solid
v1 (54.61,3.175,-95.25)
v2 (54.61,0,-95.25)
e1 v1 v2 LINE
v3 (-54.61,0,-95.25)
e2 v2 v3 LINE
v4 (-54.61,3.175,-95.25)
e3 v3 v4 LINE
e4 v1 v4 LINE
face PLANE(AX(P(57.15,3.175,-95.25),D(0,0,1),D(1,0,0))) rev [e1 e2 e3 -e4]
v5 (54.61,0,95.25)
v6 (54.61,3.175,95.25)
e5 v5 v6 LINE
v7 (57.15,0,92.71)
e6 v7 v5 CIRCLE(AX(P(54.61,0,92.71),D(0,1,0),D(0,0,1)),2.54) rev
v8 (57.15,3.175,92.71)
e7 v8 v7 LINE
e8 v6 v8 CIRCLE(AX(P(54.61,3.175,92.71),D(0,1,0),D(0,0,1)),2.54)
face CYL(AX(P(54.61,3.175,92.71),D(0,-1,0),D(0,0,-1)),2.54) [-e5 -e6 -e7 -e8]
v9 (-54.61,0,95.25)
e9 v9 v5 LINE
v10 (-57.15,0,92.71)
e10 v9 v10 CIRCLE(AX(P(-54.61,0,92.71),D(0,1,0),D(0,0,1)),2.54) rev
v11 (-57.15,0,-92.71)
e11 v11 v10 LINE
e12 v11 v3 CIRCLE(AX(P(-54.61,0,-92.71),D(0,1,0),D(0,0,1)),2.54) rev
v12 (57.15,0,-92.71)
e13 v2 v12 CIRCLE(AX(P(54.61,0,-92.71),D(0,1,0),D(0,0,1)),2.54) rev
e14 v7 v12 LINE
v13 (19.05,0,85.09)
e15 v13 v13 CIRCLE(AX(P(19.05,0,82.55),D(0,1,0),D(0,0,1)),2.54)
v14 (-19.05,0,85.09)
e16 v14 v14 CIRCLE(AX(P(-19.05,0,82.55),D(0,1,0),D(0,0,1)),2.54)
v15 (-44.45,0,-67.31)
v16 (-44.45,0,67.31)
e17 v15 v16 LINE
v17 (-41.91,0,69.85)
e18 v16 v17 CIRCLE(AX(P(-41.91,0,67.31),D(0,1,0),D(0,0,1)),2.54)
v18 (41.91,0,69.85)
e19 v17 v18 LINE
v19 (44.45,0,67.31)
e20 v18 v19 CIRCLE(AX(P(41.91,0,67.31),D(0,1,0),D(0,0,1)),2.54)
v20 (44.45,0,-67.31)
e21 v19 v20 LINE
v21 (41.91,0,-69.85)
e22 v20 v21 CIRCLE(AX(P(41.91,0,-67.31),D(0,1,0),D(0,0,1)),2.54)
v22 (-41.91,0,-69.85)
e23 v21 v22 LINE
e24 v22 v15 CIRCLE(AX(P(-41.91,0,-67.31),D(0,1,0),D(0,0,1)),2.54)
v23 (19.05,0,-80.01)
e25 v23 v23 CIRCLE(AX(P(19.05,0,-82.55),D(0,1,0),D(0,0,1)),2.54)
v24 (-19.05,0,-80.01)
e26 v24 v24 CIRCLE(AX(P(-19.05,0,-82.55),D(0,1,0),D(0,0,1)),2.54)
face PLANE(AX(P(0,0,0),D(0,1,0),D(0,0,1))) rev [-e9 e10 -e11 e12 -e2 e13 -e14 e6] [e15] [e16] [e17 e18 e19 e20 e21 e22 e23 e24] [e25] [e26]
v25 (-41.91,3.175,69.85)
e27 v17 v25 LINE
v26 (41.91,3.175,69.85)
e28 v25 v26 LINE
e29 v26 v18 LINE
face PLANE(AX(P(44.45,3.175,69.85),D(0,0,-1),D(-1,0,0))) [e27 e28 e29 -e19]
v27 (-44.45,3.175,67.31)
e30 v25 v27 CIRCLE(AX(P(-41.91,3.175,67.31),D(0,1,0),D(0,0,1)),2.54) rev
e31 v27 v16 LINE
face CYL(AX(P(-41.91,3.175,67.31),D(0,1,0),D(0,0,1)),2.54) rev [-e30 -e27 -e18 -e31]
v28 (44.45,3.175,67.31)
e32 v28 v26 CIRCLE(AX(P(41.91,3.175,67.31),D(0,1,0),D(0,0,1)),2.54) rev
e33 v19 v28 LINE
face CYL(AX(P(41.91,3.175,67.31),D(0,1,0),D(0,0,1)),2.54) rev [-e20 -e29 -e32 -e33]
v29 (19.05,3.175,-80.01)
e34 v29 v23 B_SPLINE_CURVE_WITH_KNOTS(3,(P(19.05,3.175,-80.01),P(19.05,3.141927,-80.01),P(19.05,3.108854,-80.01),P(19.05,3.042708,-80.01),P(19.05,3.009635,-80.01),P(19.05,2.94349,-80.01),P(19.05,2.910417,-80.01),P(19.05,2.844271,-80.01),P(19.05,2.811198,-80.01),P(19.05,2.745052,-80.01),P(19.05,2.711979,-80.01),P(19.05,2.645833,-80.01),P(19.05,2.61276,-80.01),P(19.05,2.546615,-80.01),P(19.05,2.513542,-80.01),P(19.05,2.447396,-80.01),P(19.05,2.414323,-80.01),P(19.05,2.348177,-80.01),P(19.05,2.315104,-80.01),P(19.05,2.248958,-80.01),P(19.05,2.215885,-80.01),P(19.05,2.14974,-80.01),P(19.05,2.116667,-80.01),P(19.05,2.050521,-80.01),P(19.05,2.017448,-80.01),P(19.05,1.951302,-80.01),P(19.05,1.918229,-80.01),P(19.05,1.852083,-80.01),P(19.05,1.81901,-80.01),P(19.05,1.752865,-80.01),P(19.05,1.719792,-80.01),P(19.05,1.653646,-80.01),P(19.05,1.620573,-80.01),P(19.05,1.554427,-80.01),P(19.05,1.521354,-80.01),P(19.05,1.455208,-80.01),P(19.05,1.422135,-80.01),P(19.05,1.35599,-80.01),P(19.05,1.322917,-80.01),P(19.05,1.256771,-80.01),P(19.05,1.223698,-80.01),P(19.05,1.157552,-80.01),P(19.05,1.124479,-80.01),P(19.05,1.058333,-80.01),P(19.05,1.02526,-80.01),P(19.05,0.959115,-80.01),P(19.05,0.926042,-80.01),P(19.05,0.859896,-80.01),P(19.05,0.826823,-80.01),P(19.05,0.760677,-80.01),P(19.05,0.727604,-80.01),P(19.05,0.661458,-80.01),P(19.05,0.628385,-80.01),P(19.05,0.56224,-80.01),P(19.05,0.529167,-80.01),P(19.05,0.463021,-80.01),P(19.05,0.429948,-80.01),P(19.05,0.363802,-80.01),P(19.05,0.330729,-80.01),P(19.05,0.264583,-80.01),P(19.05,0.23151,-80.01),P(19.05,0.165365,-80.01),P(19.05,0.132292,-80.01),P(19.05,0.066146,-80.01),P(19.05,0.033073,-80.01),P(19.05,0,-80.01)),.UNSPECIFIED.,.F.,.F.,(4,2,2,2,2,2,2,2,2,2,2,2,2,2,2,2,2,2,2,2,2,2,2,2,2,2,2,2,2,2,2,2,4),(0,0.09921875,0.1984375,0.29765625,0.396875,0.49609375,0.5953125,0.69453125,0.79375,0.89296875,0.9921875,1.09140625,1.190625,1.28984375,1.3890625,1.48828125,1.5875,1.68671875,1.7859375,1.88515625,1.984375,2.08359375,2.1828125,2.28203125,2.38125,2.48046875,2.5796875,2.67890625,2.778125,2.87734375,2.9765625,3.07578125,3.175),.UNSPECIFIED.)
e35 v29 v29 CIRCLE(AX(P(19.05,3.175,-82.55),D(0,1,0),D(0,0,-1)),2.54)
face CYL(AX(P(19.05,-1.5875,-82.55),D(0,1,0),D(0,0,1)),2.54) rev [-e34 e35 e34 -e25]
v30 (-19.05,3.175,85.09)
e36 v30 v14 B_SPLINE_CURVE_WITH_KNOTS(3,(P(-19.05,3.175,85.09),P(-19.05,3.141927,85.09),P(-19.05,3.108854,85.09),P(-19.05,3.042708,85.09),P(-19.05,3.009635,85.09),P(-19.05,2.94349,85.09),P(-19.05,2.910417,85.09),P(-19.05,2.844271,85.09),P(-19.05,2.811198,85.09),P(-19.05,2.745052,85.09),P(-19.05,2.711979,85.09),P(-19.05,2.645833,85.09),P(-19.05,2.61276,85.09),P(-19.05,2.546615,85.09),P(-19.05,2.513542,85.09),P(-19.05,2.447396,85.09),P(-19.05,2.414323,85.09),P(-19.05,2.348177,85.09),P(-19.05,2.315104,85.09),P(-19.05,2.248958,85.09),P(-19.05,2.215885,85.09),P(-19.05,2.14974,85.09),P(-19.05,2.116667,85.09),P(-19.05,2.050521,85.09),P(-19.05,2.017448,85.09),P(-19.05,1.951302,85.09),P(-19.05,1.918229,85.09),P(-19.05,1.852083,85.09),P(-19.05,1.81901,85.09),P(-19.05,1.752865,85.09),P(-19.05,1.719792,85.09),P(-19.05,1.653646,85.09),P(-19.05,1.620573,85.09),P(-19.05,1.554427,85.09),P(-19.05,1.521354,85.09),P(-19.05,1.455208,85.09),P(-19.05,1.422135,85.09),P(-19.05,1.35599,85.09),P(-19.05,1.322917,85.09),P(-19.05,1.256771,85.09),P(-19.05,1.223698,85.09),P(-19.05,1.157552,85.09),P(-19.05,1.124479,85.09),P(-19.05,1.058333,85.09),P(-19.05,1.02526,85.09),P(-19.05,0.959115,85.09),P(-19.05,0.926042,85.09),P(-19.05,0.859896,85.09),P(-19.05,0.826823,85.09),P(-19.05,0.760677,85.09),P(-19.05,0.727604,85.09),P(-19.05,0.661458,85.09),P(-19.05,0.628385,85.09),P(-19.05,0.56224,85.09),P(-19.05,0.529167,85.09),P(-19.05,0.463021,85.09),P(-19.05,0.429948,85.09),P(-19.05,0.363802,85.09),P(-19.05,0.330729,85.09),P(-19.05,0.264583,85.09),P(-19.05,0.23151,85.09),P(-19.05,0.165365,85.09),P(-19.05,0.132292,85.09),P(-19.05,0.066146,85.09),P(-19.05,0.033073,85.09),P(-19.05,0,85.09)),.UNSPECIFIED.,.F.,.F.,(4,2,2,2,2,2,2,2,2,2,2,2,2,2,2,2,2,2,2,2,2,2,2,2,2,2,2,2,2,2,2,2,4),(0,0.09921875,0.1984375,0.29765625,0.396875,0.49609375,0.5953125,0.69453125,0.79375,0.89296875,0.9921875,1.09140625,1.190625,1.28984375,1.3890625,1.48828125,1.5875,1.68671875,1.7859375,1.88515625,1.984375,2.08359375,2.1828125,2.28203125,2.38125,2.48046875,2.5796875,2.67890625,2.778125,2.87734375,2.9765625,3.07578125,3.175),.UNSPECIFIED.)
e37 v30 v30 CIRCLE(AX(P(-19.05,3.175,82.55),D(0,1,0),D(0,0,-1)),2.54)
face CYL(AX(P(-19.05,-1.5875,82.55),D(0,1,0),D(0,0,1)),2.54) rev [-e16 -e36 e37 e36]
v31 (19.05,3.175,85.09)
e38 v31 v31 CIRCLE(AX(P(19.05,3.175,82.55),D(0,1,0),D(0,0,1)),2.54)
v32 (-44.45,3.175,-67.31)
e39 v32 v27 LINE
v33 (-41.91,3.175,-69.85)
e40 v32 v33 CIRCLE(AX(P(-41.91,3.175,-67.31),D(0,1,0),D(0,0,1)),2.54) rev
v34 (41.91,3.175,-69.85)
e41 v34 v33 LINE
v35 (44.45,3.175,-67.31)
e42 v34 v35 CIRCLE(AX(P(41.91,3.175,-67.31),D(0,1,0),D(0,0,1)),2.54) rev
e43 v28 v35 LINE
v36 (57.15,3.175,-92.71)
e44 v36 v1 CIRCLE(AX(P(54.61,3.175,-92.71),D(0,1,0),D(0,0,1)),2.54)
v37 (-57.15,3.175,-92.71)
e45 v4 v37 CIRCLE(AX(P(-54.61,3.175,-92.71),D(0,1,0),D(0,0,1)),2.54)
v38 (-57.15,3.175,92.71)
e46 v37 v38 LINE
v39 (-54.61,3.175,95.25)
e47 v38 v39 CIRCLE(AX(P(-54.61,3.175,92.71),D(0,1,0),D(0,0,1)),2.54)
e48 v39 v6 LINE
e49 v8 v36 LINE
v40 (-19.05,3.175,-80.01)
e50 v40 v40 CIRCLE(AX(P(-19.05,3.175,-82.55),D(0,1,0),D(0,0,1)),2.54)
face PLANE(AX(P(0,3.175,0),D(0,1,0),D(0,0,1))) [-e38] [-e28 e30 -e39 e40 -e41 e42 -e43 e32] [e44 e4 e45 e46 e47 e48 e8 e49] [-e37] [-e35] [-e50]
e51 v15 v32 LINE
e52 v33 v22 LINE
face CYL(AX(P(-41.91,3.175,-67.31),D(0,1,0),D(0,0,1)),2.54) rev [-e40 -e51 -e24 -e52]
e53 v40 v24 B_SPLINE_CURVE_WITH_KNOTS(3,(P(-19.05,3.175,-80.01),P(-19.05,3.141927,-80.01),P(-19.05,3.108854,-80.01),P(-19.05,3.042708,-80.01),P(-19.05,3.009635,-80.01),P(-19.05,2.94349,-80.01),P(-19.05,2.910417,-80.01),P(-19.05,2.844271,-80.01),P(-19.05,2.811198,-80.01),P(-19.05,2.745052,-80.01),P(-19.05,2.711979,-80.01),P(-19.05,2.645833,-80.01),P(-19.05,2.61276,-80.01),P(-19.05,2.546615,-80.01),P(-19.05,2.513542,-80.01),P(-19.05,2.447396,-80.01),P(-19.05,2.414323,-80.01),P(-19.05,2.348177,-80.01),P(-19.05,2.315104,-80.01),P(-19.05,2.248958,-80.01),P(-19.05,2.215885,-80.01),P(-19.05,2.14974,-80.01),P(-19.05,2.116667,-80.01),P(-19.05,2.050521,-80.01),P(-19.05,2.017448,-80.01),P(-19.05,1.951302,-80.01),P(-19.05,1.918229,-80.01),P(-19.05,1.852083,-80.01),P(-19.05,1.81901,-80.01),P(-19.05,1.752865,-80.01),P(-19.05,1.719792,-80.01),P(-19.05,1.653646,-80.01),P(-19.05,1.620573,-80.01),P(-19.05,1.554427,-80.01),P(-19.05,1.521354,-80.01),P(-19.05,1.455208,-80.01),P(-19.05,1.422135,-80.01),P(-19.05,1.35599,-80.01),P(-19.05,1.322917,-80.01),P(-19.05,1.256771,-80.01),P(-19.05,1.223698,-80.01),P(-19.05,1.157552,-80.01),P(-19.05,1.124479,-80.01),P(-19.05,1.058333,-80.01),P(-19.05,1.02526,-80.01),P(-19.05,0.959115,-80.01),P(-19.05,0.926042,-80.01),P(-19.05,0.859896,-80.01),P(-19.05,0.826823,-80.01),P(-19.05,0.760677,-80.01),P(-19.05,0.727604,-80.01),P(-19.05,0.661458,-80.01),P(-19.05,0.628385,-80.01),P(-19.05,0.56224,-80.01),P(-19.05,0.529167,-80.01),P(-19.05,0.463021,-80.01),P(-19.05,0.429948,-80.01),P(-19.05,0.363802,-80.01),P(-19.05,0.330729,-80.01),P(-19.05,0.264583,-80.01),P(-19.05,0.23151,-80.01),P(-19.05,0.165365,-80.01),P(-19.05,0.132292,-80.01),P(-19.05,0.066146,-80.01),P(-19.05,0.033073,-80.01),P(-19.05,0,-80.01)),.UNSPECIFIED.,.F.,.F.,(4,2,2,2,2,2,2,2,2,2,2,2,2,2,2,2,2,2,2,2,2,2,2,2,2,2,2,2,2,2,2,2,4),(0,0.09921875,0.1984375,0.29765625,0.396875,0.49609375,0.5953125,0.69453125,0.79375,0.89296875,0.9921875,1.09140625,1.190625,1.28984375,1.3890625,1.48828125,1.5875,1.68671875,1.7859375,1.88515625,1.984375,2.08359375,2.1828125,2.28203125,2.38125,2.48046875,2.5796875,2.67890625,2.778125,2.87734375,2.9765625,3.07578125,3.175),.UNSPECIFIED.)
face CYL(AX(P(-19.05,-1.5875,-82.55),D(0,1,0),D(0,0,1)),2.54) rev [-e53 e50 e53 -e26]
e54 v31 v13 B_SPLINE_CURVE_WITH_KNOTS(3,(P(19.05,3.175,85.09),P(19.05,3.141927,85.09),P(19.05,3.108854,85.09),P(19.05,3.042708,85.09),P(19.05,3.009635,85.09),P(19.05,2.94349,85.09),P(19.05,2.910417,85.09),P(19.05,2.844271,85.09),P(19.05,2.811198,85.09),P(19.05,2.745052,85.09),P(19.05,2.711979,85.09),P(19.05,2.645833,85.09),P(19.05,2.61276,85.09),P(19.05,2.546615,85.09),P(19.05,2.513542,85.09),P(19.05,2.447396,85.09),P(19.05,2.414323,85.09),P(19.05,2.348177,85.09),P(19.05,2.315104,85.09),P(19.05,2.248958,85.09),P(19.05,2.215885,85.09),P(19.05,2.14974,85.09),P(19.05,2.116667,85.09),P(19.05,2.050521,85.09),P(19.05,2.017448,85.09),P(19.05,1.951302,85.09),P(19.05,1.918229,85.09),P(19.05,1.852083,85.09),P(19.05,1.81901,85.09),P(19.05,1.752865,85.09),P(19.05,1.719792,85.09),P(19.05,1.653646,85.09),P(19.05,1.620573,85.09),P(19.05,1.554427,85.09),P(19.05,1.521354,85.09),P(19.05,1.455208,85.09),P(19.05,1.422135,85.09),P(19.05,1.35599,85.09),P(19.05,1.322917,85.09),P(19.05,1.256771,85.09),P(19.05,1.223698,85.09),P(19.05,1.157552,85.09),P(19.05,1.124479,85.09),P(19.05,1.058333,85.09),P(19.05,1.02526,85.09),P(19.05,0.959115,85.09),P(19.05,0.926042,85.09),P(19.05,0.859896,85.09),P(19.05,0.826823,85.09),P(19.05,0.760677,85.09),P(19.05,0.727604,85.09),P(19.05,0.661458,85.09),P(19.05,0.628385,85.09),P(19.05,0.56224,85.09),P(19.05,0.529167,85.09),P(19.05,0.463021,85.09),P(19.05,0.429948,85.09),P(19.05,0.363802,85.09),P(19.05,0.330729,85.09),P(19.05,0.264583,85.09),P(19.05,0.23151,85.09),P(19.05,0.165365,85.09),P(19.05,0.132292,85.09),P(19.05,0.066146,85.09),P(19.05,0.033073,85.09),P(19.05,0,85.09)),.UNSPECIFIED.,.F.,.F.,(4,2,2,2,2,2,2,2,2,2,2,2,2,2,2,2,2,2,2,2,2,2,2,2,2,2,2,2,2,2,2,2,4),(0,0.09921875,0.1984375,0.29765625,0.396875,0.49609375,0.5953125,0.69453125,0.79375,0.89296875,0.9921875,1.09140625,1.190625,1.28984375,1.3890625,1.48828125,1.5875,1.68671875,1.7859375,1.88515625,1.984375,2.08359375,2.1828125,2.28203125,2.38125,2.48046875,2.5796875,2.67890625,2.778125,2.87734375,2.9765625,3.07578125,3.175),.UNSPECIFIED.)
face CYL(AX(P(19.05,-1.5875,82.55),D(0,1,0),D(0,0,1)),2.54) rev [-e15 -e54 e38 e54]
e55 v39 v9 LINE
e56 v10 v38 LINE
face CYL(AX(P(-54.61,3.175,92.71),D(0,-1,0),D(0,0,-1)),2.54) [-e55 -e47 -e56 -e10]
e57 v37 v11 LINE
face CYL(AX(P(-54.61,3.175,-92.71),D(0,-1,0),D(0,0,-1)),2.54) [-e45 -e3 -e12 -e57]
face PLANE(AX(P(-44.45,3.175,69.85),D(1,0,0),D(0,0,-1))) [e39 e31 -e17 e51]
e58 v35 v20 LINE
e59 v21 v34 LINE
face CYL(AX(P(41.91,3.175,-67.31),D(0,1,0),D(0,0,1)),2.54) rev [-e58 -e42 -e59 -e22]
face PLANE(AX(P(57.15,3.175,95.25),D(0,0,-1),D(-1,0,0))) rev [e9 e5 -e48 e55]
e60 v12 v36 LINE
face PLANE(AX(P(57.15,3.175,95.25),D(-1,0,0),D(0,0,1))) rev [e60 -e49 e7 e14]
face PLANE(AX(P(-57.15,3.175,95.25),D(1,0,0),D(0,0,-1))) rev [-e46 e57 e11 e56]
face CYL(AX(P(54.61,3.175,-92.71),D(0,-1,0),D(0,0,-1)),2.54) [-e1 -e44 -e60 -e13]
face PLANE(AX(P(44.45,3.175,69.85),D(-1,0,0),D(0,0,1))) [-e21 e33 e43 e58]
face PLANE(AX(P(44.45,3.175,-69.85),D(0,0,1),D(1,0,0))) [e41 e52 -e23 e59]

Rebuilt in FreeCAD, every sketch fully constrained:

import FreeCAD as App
import Part
import Sketcher
from FreeCAD import Vector
Q = App.Units.Quantity


def edges_at(feature, points):
    """Names of the edges that pass closest to the given points."""
    edges = feature.Shape.Edges
    near = lambda p: min(range(len(edges)), key=lambda i: edges[i].distToShape(Part.Vertex(*p))[0])
    return sorted({f"Edge{near(p) + 1}" for p in points})

doc = App.newDocument("Part")
params = doc.addObject("Spreadsheet::Sheet", "Params")
for row, (alias, value) in enumerate([
    ("sketch1_width", "4.5 in"),
    ("sketch1_width2", "3.5 in"),
    ("sketch1_height", "7.5 in"),
    ("sketch1_height2", "5.5 in"),
    ("pad1_length", "0.125 in"),
    ("sketch2_diameter", "0.2 in"),
    ("pocket1_length", "0.1875 in"),
    ("fillet_radius", "0.1 in"),
    ("fillet2_radius", "0.1 in"),
], start=1):
    params.set(f"A{row}", alias)
    params.set(f"B{row}", "=" + value)
    params.setAlias(f"B{row}", alias)

body = doc.addObject("PartDesign::Body", "Body")

# Sketch on XZ plane
sketch1 = body.newObject("Sketcher::SketchObject", "Sketch")
sketch1.AttachmentSupport = (doc.getObject("XZ_Plane"), [""])
sketch1.MapMode = "FlatFace"
sketch1.addGeometry([
    Part.LineSegment(Vector(-57.15, -95.25, 0), Vector(-57.15, 95.25, 0)),  # 0
    Part.LineSegment(Vector(-57.15, 95.25, 0), Vector(57.15, 95.25, 0)),  # 1
    Part.LineSegment(Vector(57.15, 95.25, 0), Vector(57.15, -95.25, 0)),  # 2
    Part.LineSegment(Vector(57.15, -95.25, 0), Vector(-57.15, -95.25, 0)),  # 3
    Part.LineSegment(Vector(44.45, 69.85, 0), Vector(-44.45, 69.85, 0)),  # 4
    Part.LineSegment(Vector(-44.45, 69.85, 0), Vector(-44.45, -69.85, 0)),  # 5
    Part.LineSegment(Vector(-44.45, -69.85, 0), Vector(44.45, -69.85, 0)),  # 6
    Part.LineSegment(Vector(44.45, -69.85, 0), Vector(44.45, 69.85, 0)),  # 7
], False)
sketch1.addConstraint([
    Sketcher.Constraint("Coincident", 0, 2, 1, 1),
    Sketcher.Constraint("Coincident", 1, 2, 2, 1),
    Sketcher.Constraint("Coincident", 2, 2, 3, 1),
    Sketcher.Constraint("Coincident", 3, 2, 0, 1),
    Sketcher.Constraint("Coincident", 4, 2, 5, 1),
    Sketcher.Constraint("Coincident", 5, 2, 6, 1),
    Sketcher.Constraint("Coincident", 6, 2, 7, 1),
    Sketcher.Constraint("Coincident", 7, 2, 4, 1),
    Sketcher.Constraint("Vertical", 0),
    Sketcher.Constraint("Horizontal", 1),
    Sketcher.Constraint("Vertical", 2),
    Sketcher.Constraint("Horizontal", 3),
    Sketcher.Constraint("Horizontal", 4),
    Sketcher.Constraint("Vertical", 5),
    Sketcher.Constraint("Horizontal", 6),
    Sketcher.Constraint("Vertical", 7),
    Sketcher.Constraint("Symmetric", 0, 2, 2, 2, -1, 1),
    Sketcher.Constraint("Symmetric", 4, 2, 6, 2, -1, 1),
    Sketcher.Constraint("DistanceX", 1, 1, 1, 2, Q("4.5 in")),
    Sketcher.Constraint("DistanceX", 4, 2, 4, 1, Q("3.5 in")),
    Sketcher.Constraint("DistanceY", 0, 1, 0, 2, Q("7.5 in")),
    Sketcher.Constraint("DistanceY", 5, 2, 5, 1, Q("5.5 in")),
])
sketch1.setExpression("Constraints[18]", "Params.sketch1_width")
sketch1.setExpression("Constraints[19]", "Params.sketch1_width2")
sketch1.setExpression("Constraints[20]", "Params.sketch1_height")
sketch1.setExpression("Constraints[21]", "Params.sketch1_height2")
pad1 = body.newObject("PartDesign::Pad", "Pad")
pad1.Profile = sketch1
pad1.setExpression("Length", "Params.pad1_length")
pad1.Reversed = True

# Sketch on XZ plane
sketch2 = body.newObject("Sketcher::SketchObject", "Sketch001")
sketch2.AttachmentSupport = (doc.getObject("XZ_Plane"), [""])
sketch2.MapMode = "FlatFace"
sketch2.AttachmentOffset = App.Placement(Vector(0, 0, -0.125 * 25.4), App.Rotation())
sketch2.addGeometry([
    Part.Circle(Vector(19.05, 82.55, 0), Vector(0, 0, 1), 2.54),
    Part.Circle(Vector(19.05, -82.55, 0), Vector(0, 0, 1), 2.54),
    Part.Circle(Vector(-19.05, 82.55, 0), Vector(0, 0, 1), 2.54),
    Part.Circle(Vector(-19.05, -82.55, 0), Vector(0, 0, 1), 2.54),
], False)
sketch2.addConstraint([
    Sketcher.Constraint("Equal", 0, 1),
    Sketcher.Constraint("Equal", 1, 2),
    Sketcher.Constraint("Equal", 2, 3),
    Sketcher.Constraint("Symmetric", 1, 3, 2, 3, -1, 1),
    Sketcher.Constraint("Symmetric", 0, 3, 3, 3, -1, 1),
    Sketcher.Constraint("Symmetric", 0, 3, 2, 3, -2),
    Sketcher.Constraint("Diameter", 0, Q("0.2 in")),
    Sketcher.Constraint("DistanceY", 1, 3, 0, 3, Q("6.5 in")),
    Sketcher.Constraint("DistanceX", 2, 3, 0, 3, Q("1.5 in")),
])
sketch2.setExpression("Constraints[6]", "Params.sketch2_diameter")
pocket1 = body.newObject("PartDesign::Pocket", "Pocket")
pocket1.Profile = sketch2
pocket1.setExpression("Length", "Params.pocket1_length")
pocket1.Reversed = True
doc.recompute()

fillet = body.newObject("PartDesign::Fillet", "Fillet")
fillet.Base = (pocket1, edges_at(pocket1, [
    (-44.45, 1.587, -69.85),
    (-44.45, 1.587, 69.85),
    (44.45, 1.587, 69.85),
    (44.45, 1.587, -69.85),
]))
fillet.setExpression("Radius", "Params.fillet_radius")
doc.recompute()

fillet2 = body.newObject("PartDesign::Fillet", "Fillet001")
fillet2.Base = (fillet, edges_at(fillet, [
    (-57.15, 1.587, -95.25),
    (57.15, 1.587, -95.25),
    (57.15, 1.587, 95.25),
    (-57.15, 1.587, 95.25),
]))
fillet2.setExpression("Radius", "Params.fillet2_radius")

doc.recompute()
